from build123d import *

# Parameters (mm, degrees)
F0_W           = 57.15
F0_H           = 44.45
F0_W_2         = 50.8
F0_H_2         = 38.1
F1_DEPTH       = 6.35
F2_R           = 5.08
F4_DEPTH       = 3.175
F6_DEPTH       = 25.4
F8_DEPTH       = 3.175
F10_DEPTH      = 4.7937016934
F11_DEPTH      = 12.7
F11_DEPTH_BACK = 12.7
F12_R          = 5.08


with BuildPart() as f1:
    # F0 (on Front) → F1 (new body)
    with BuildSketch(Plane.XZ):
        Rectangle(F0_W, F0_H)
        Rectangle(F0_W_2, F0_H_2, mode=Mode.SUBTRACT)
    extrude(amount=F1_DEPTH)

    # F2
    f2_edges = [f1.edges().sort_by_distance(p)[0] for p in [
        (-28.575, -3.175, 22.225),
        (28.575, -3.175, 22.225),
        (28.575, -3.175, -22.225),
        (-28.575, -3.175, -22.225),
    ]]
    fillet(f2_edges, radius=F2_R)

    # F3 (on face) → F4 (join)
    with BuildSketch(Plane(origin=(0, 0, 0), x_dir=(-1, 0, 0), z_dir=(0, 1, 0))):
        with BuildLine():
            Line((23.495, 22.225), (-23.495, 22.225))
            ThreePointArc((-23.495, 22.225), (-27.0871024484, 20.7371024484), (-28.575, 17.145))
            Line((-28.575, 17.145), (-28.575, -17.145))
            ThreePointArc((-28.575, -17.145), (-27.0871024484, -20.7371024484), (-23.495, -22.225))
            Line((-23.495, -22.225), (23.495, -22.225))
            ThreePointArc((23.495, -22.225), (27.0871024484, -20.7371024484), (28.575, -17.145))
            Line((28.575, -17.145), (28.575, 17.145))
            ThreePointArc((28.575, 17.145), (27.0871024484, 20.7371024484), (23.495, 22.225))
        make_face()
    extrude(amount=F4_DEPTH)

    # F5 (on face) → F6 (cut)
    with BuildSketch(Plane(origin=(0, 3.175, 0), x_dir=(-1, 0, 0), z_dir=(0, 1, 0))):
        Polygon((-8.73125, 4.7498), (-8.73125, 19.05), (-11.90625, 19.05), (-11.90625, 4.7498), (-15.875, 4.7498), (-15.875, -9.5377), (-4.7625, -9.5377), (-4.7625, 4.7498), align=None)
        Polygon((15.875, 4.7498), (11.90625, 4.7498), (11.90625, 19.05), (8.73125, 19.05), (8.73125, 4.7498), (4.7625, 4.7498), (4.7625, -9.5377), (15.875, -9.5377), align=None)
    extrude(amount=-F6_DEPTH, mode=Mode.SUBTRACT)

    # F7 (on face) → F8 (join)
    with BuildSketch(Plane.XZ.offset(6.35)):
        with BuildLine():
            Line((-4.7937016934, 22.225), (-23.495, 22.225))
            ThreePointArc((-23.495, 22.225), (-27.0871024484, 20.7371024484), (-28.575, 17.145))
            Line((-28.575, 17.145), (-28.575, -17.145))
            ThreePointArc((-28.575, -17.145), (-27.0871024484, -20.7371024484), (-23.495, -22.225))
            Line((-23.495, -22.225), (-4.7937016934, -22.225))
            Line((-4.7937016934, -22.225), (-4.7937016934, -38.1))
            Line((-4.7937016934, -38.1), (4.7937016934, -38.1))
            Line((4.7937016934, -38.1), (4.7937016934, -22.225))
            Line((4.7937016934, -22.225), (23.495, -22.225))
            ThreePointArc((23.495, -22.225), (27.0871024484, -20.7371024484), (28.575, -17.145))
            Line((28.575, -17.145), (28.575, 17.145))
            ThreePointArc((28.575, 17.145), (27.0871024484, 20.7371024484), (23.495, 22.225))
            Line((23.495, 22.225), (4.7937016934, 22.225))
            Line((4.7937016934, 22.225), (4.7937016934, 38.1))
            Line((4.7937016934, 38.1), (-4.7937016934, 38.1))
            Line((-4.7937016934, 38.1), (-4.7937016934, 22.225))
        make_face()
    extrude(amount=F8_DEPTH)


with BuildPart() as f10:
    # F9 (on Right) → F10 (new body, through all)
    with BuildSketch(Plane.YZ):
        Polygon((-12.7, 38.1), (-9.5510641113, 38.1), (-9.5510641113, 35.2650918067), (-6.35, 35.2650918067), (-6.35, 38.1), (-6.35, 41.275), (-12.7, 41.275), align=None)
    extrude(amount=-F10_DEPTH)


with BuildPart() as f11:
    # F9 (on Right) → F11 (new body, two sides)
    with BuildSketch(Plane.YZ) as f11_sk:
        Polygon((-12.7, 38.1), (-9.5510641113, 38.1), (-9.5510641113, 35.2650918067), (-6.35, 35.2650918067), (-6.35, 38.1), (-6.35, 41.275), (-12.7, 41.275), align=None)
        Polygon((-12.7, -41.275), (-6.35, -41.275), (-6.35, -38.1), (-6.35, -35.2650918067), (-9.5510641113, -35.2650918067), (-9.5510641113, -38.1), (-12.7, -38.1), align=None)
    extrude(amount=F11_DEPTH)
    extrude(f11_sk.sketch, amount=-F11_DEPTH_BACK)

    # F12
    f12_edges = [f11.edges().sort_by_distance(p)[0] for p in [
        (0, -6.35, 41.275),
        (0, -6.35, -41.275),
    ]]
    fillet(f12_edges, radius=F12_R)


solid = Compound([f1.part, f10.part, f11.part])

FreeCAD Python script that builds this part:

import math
import FreeCAD as App
import Part
import Sketcher

V = App.Vector
Q = App.Units.Quantity


def edges_at(feature, points):
    """Names of the edges that pass closest to the given points."""
    edges = feature.Shape.Edges
    near = lambda p: min(range(len(edges)), key=lambda i: edges[i].distToShape(Part.Vertex(*p))[0])
    return sorted({f"Edge{near(p) + 1}" for p in points})

doc = App.newDocument("Part")
body = doc.addObject("PartDesign::Body", "Body")

# Sketch on XZ plane
sketch1 = body.newObject("Sketcher::SketchObject", "Sketch")
sketch1.AttachmentSupport = (doc.getObject("XZ_Plane"), [""])
sketch1.MapMode = "FlatFace"
sketch1.addGeometry([
    Part.LineSegment(V(-29, 22, 0), V(-29, -22, 0)),  # 0
    Part.LineSegment(V(-29, -22, 0), V(29, -22, 0)),  # 1
    Part.LineSegment(V(29, -22, 0), V(29, 22, 0)),  # 2
    Part.LineSegment(V(29, 22, 0), V(-29, 22, 0)),  # 3
    Part.LineSegment(V(25, -19, 0), V(-25, -19, 0)),  # 4
    Part.LineSegment(V(-25, -19, 0), V(-25, 19, 0)),  # 5
    Part.LineSegment(V(-25, 19, 0), V(25, 19, 0)),  # 6
    Part.LineSegment(V(25, 19, 0), V(25, -19, 0)),  # 7
], False)
sketch1.addConstraint([
    Sketcher.Constraint("Coincident", 0, 2, 1, 1),
    Sketcher.Constraint("Coincident", 1, 2, 2, 1),
    Sketcher.Constraint("Coincident", 2, 2, 3, 1),
    Sketcher.Constraint("Coincident", 3, 2, 0, 1),
    Sketcher.Constraint("Coincident", 4, 2, 5, 1),
    Sketcher.Constraint("Coincident", 5, 2, 6, 1),
    Sketcher.Constraint("Coincident", 6, 2, 7, 1),
    Sketcher.Constraint("Coincident", 7, 2, 4, 1),
    Sketcher.Constraint("Vertical", 0),
    Sketcher.Constraint("Horizontal", 1),
    Sketcher.Constraint("Vertical", 2),
    Sketcher.Constraint("Horizontal", 3),
    Sketcher.Constraint("Horizontal", 4),
    Sketcher.Constraint("Vertical", 5),
    Sketcher.Constraint("Horizontal", 6),
    Sketcher.Constraint("Vertical", 7),
    Sketcher.Constraint("Symmetric", 0, 2, 2, 2, -1, 1),
    Sketcher.Constraint("Symmetric", 4, 2, 6, 2, -1, 1),
    Sketcher.Constraint("DistanceX", 4, 2, 4, 1, Q("2 in")),
    Sketcher.Constraint("DistanceY", 5, 1, 5, 2, Q("1.5 in")),
    Sketcher.Constraint("DistanceX", 1, 1, 1, 2, Q("2.25 in")),
    Sketcher.Constraint("DistanceY", 0, 2, 0, 1, Q("1.75 in")),
])
pad1 = body.newObject("PartDesign::Pad", "Pad")
pad1.Profile = sketch1
pad1.Length = Q("0.25 in")
doc.recompute()

fillet = body.newObject("PartDesign::Fillet", "Fillet")
fillet.Base = (pad1, edges_at(pad1, [
    (-28.575, -3.175, 22.225),
    (28.575, -3.175, 22.225),
    (28.575, -3.175, -22.225),
    (-28.575, -3.175, -22.225),
]))
fillet.Radius = Q("0.2 in")

# Sketch on XZ plane
sketch2 = body.newObject("Sketcher::SketchObject", "Sketch001")
sketch2.AttachmentSupport = (doc.getObject("XZ_Plane"), [""])
sketch2.MapMode = "FlatFace"
sketch2.addGeometry([
    Part.LineSegment(V(-23, 22, 0), V(23, 22, 0)),  # 0
    Part.ArcOfCircle(Part.Circle(V(23, 17, 0), V(0, 0, 1), 5), math.radians(0), math.radians(90)),  # 1
    Part.LineSegment(V(29, 17, 0), V(29, -17, 0)),  # 2
    Part.ArcOfCircle(Part.Circle(V(23, -17, 0), V(0, 0, 1), 5), math.radians(-90), math.radians(0)),  # 3
    Part.LineSegment(V(23, -22, 0), V(-23, -22, 0)),  # 4
    Part.ArcOfCircle(Part.Circle(V(-23, -17, 0), V(0, 0, 1), 5), math.radians(180), math.radians(270)),  # 5
    Part.LineSegment(V(-29, -17, 0), V(-29, 17, 0)),  # 6
    Part.ArcOfCircle(Part.Circle(V(-23, 17, 0), V(0, 0, 1), 5), math.radians(90), math.radians(180)),  # 7
], False)
sketch2.addConstraint([
    Sketcher.Constraint("Tangent", 0, 2, 1, 2),
    Sketcher.Constraint("Tangent", 1, 1, 2, 1),
    Sketcher.Constraint("Tangent", 2, 2, 3, 2),
    Sketcher.Constraint("Tangent", 3, 1, 4, 1),
    Sketcher.Constraint("Tangent", 4, 2, 5, 2),
    Sketcher.Constraint("Tangent", 5, 1, 6, 1),
    Sketcher.Constraint("Tangent", 6, 2, 7, 2),
    Sketcher.Constraint("Tangent", 7, 1, 0, 1),
    Sketcher.Constraint("Horizontal", 0),
    Sketcher.Constraint("Vertical", 2),
    Sketcher.Constraint("Horizontal", 4),
    Sketcher.Constraint("Vertical", 6),
    Sketcher.Constraint("Equal", 1, 3),
    Sketcher.Constraint("Equal", 3, 5),
    Sketcher.Constraint("Equal", 5, 7),
    Sketcher.Constraint("Symmetric", 1, 3, 5, 3, -1, 1),
    Sketcher.Constraint("Radius", 1, Q("0.2 in")),
    Sketcher.Constraint("DistanceX", 0, 1, 0, 2, Q("1.85 in")),
    Sketcher.Constraint("DistanceY", 2, 2, 2, 1, Q("1.35 in")),
])
pad2 = body.newObject("PartDesign::Pad", "Pad001")
pad2.Profile = sketch2
pad2.Length = Q("0.125 in")
pad2.Reversed = True

# Sketch on XZ plane
sketch3 = body.newObject("Sketcher::SketchObject", "Sketch002")
sketch3.AttachmentSupport = (doc.getObject("XZ_Plane"), [""])
sketch3.MapMode = "FlatFace"
sketch3.AttachmentOffset = App.Placement(V(0, 0, -0.125 * 25.4), App.Rotation())
sketch3.addGeometry([
    Part.LineSegment(V(8.7, 4.7, 0), V(8.7, 19.1, 0)),  # 0
    Part.LineSegment(V(8.7, 19.1, 0), V(11.9, 19.1, 0)),  # 1
    Part.LineSegment(V(11.9, 19.1, 0), V(11.9, 4.7, 0)),  # 2
    Part.LineSegment(V(11.9, 4.7, 0), V(15.9, 4.7, 0)),  # 3
    Part.LineSegment(V(15.9, 4.7, 0), V(15.9, -9.5, 0)),  # 4
    Part.LineSegment(V(15.9, -9.5, 0), V(4.8, -9.5, 0)),  # 5
    Part.LineSegment(V(4.8, -9.5, 0), V(4.8, 4.7, 0)),  # 6
    Part.LineSegment(V(4.8, 4.7, 0), V(8.7, 4.7, 0)),  # 7
    Part.LineSegment(V(-15.9, 4.7, 0), V(-11.9, 4.7, 0)),  # 8
    Part.LineSegment(V(-11.9, 4.7, 0), V(-11.9, 19.1, 0)),  # 9
    Part.LineSegment(V(-11.9, 19.1, 0), V(-8.7, 19.1, 0)),  # 10
    Part.LineSegment(V(-8.7, 19.1, 0), V(-8.7, 4.7, 0)),  # 11
    Part.LineSegment(V(-8.7, 4.7, 0), V(-4.8, 4.7, 0)),  # 12
    Part.LineSegment(V(-4.8, 4.7, 0), V(-4.8, -9.5, 0)),  # 13
    Part.LineSegment(V(-4.8, -9.5, 0), V(-15.9, -9.5, 0)),  # 14
    Part.LineSegment(V(-15.9, -9.5, 0), V(-15.9, 4.7, 0)),  # 15
], False)
sketch3.addConstraint([
    Sketcher.Constraint("Coincident", 0, 2, 1, 1),
    Sketcher.Constraint("Coincident", 1, 2, 2, 1),
    Sketcher.Constraint("Coincident", 2, 2, 3, 1),
    Sketcher.Constraint("Coincident", 3, 2, 4, 1),
    Sketcher.Constraint("Coincident", 4, 2, 5, 1),
    Sketcher.Constraint("Coincident", 5, 2, 6, 1),
    Sketcher.Constraint("Coincident", 6, 2, 7, 1),
    Sketcher.Constraint("Coincident", 7, 2, 0, 1),
    Sketcher.Constraint("Coincident", 8, 2, 9, 1),
    Sketcher.Constraint("Coincident", 9, 2, 10, 1),
    Sketcher.Constraint("Coincident", 10, 2, 11, 1),
    Sketcher.Constraint("Coincident", 11, 2, 12, 1),
    Sketcher.Constraint("Coincident", 12, 2, 13, 1),
    Sketcher.Constraint("Coincident", 13, 2, 14, 1),
    Sketcher.Constraint("Coincident", 14, 2, 15, 1),
    Sketcher.Constraint("Coincident", 15, 2, 8, 1),
    Sketcher.Constraint("Vertical", 0),
    Sketcher.Constraint("Horizontal", 1),
    Sketcher.Constraint("Vertical", 2),
    Sketcher.Constraint("Horizontal", 3),
    Sketcher.Constraint("Vertical", 4),
    Sketcher.Constraint("Horizontal", 5),
    Sketcher.Constraint("Vertical", 6),
    Sketcher.Constraint("Horizontal", 7),
    Sketcher.Constraint("Horizontal", 8),
    Sketcher.Constraint("Vertical", 9),
    Sketcher.Constraint("Horizontal", 10),
    Sketcher.Constraint("Vertical", 11),
    Sketcher.Constraint("Horizontal", 12),
    Sketcher.Constraint("Vertical", 13),
    Sketcher.Constraint("Horizontal", 14),
    Sketcher.Constraint("Vertical", 15),
    Sketcher.Constraint("Symmetric", 2, 2, 8, 2, -2),
    Sketcher.Constraint("Symmetric", 0, 2, 10, 2, -2),
    Sketcher.Constraint("Symmetric", 6, 2, 12, 2, -2),
    Sketcher.Constraint("Symmetric", 4, 2, 14, 2, -2),
    Sketcher.Constraint("Horizontal", 3, 2, 6, 2),
    Sketcher.Constraint("Equal", 3, 7),
    Sketcher.Constraint("DistanceX", 1, 1, 1, 2, Q("0.125 in")),
    Sketcher.Constraint("DistanceX", 3, 1, 3, 2, Q("0.15625 in")),
    Sketcher.Constraint("DistanceY", 0, 1, 0, 2, Q("0.563 in")),
    Sketcher.Constraint("DistanceY", 4, 2, 4, 1, Q("0.5625 in")),
    Sketcher.Constraint("DistanceY", -1, 1, 0, 2, Q("0.75 in")),
    Sketcher.Constraint("DistanceX", -1, 1, 0, 2, Q("0.34375 in")),
])
pocket1 = body.newObject("PartDesign::Pocket", "Pocket")
pocket1.Profile = sketch3
pocket1.Length = Q("1 in")
pocket1.Reversed = True

# Sketch on XZ plane
sketch4 = body.newObject("Sketcher::SketchObject", "Sketch003")
sketch4.AttachmentSupport = (doc.getObject("XZ_Plane"), [""])
sketch4.MapMode = "FlatFace"
sketch4.AttachmentOffset = App.Placement(V(0, 0, 0.25 * 25.4), App.Rotation())
sketch4.addGeometry([
    Part.LineSegment(V(-5, 22, 0), V(-23, 22, 0)),  # 0
    Part.ArcOfCircle(Part.Circle(V(-23, 17, 0), V(0, 0, 1), 5), math.radians(90), math.radians(180)),  # 1
    Part.LineSegment(V(-29, 17, 0), V(-29, -17, 0)),  # 2
    Part.ArcOfCircle(Part.Circle(V(-23, -17, 0), V(0, 0, 1), 5), math.radians(180), math.radians(270)),  # 3
    Part.LineSegment(V(-23, -22, 0), V(-5, -22, 0)),  # 4
    Part.LineSegment(V(-5, -22, 0), V(-5, -38, 0)),  # 5
    Part.LineSegment(V(-5, -38, 0), V(5, -38, 0)),  # 6
    Part.LineSegment(V(5, -38, 0), V(5, -22, 0)),  # 7
    Part.LineSegment(V(5, -22, 0), V(23, -22, 0)),  # 8
    Part.ArcOfCircle(Part.Circle(V(23, -17, 0), V(0, 0, 1), 5), math.radians(-90), math.radians(0)),  # 9
    Part.LineSegment(V(29, -17, 0), V(29, 17, 0)),  # 10
    Part.ArcOfCircle(Part.Circle(V(23, 17, 0), V(0, 0, 1), 5), math.radians(0), math.radians(90)),  # 11
    Part.LineSegment(V(23, 22, 0), V(5, 22, 0)),  # 12
    Part.LineSegment(V(5, 22, 0), V(5, 38, 0)),  # 13
    Part.LineSegment(V(5, 38, 0), V(-5, 38, 0)),  # 14
    Part.LineSegment(V(-5, 38, 0), V(-5, 22, 0)),  # 15
], False)
sketch4.addConstraint([
    Sketcher.Constraint("Tangent", 0, 2, 1, 1),
    Sketcher.Constraint("Tangent", 1, 2, 2, 1),
    Sketcher.Constraint("Tangent", 2, 2, 3, 1),
    Sketcher.Constraint("Tangent", 3, 2, 4, 1),
    Sketcher.Constraint("Coincident", 4, 2, 5, 1),
    Sketcher.Constraint("Coincident", 5, 2, 6, 1),
    Sketcher.Constraint("Coincident", 6, 2, 7, 1),
    Sketcher.Constraint("Coincident", 7, 2, 8, 1),
    Sketcher.Constraint("Tangent", 8, 2, 9, 1),
    Sketcher.Constraint("Tangent", 9, 2, 10, 1),
    Sketcher.Constraint("Tangent", 10, 2, 11, 1),
    Sketcher.Constraint("Tangent", 11, 2, 12, 1),
    Sketcher.Constraint("Coincident", 12, 2, 13, 1),
    Sketcher.Constraint("Coincident", 13, 2, 14, 1),
    Sketcher.Constraint("Coincident", 14, 2, 15, 1),
    Sketcher.Constraint("Coincident", 15, 2, 0, 1),
    Sketcher.Constraint("Horizontal", 0),
    Sketcher.Constraint("Vertical", 2),
    Sketcher.Constraint("Horizontal", 4),
    Sketcher.Constraint("Vertical", 5),
    Sketcher.Constraint("Horizontal", 6),
    Sketcher.Constraint("Vertical", 7),
    Sketcher.Constraint("Horizontal", 8),
    Sketcher.Constraint("Vertical", 10),
    Sketcher.Constraint("Horizontal", 12),
    Sketcher.Constraint("Vertical", 13),
    Sketcher.Constraint("Horizontal", 14),
    Sketcher.Constraint("Vertical", 15),
    Sketcher.Constraint("Equal", 1, 3),
    Sketcher.Constraint("Equal", 3, 9),
    Sketcher.Constraint("Equal", 9, 11),
    Sketcher.Constraint("Symmetric", 1, 3, 9, 3, -1, 1),
    Sketcher.Constraint("Symmetric", 4, 2, 12, 2, -1, 1),
    Sketcher.Constraint("Symmetric", 6, 2, 14, 2, -1, 1),
    Sketcher.Constraint("Symmetric", 4, 2, 7, 2, -2),
    Sketcher.Constraint("Radius", 1, Q("0.2 in")),
    Sketcher.Constraint("DistanceY", 2, 2, 2, 1, Q("1.35 in")),
    Sketcher.Constraint("DistanceY", 5, 2, -1, 1, Q("1.5 in")),
    Sketcher.Constraint("DistanceX", 3, 3, 9, 3, Q("1.85 in")),
    Sketcher.Constraint("DistanceX", 0, 2, 0, 1, Q("18.701298 mm")),
])
pad3 = body.newObject("PartDesign::Pad", "Pad002")
pad3.Profile = sketch4
pad3.Length = Q("0.125 in")
body2 = doc.addObject("PartDesign::Body", "Body001")

# Sketch on YZ plane
sketch5 = body2.newObject("Sketcher::SketchObject", "Sketch004")
sketch5.AttachmentSupport = (doc.getObject("YZ_Plane001"), [""])
sketch5.MapMode = "FlatFace"
sketch5.addGeometry([
    Part.LineSegment(V(-12.7, 38.1, 0), V(-9.6, 38.1, 0)),  # 0
    Part.LineSegment(V(-9.6, 38.1, 0), V(-9.6, 35.3, 0)),  # 1
    Part.LineSegment(V(-9.6, 35.3, 0), V(-6.3, 35.3, 0)),  # 2
    Part.LineSegment(V(-6.3, 35.3, 0), V(-6.3, 41.3, 0)),  # 3
    Part.LineSegment(V(-6.3, 41.3, 0), V(-12.7, 41.3, 0)),  # 4
    Part.LineSegment(V(-12.7, 41.3, 0), V(-12.7, 38.1, 0)),  # 5
], False)
sketch5.addConstraint([
    Sketcher.Constraint("Coincident", 0, 2, 1, 1),
    Sketcher.Constraint("Coincident", 1, 2, 2, 1),
    Sketcher.Constraint("Coincident", 2, 2, 3, 1),
    Sketcher.Constraint("Coincident", 3, 2, 4, 1),
    Sketcher.Constraint("Coincident", 4, 2, 5, 1),
    Sketcher.Constraint("Coincident", 5, 2, 0, 1),
    Sketcher.Constraint("Horizontal", 0),
    Sketcher.Constraint("Vertical", 1),
    Sketcher.Constraint("Horizontal", 2),
    Sketcher.Constraint("Vertical", 3),
    Sketcher.Constraint("Horizontal", 4),
    Sketcher.Constraint("Vertical", 5),
    Sketcher.Constraint("DistanceX", 4, 2, 4, 1, Q("0.25 in")),
    Sketcher.Constraint("DistanceY", -1, 1, 0, 2, Q("1.5 in")),
    Sketcher.Constraint("DistanceX", 4, 2, -1, 1, Q("0.5 in")),
    Sketcher.Constraint("DistanceY", 5, 2, 5, 1, Q("0.125 in")),
    Sketcher.Constraint("DistanceY", 1, 2, 1, 1, Q("2.834908 mm")),
    Sketcher.Constraint("DistanceX", 0, 1, 0, 2, Q("3.148936 mm")),
])
pad4 = body2.newObject("PartDesign::Pad", "Pad003")
pad4.Profile = sketch5
pad4.Length = 4.793702
pad4.Reversed = True
body3 = doc.addObject("PartDesign::Body", "Body002")
body3.AllowCompound = True

# Sketch on YZ plane
sketch6 = body3.newObject("Sketcher::SketchObject", "Sketch005")
sketch6.AttachmentSupport = (doc.getObject("YZ_Plane002"), [""])
sketch6.MapMode = "FlatFace"
sketch6.addGeometry([
    Part.LineSegment(V(-12.7, 38.1, 0), V(-9.6, 38.1, 0)),  # 0
    Part.LineSegment(V(-9.6, 38.1, 0), V(-9.6, 35.3, 0)),  # 1
    Part.LineSegment(V(-9.6, 35.3, 0), V(-6.3, 35.3, 0)),  # 2
    Part.LineSegment(V(-6.3, 35.3, 0), V(-6.3, 41.3, 0)),  # 3
    Part.LineSegment(V(-6.3, 41.3, 0), V(-12.7, 41.3, 0)),  # 4
    Part.LineSegment(V(-12.7, 41.3, 0), V(-12.7, 38.1, 0)),  # 5
    Part.LineSegment(V(-12.7, -41.3, 0), V(-6.3, -41.3, 0)),  # 6
    Part.LineSegment(V(-6.3, -41.3, 0), V(-6.3, -35.3, 0)),  # 7
    Part.LineSegment(V(-6.3, -35.3, 0), V(-9.6, -35.3, 0)),  # 8
    Part.LineSegment(V(-9.6, -35.3, 0), V(-9.6, -38.1, 0)),  # 9
    Part.LineSegment(V(-9.6, -38.1, 0), V(-12.7, -38.1, 0)),  # 10
    Part.LineSegment(V(-12.7, -38.1, 0), V(-12.7, -41.3, 0)),  # 11
], False)
sketch6.addConstraint([
    Sketcher.Constraint("Coincident", 0, 2, 1, 1),
    Sketcher.Constraint("Coincident", 1, 2, 2, 1),
    Sketcher.Constraint("Coincident", 2, 2, 3, 1),
    Sketcher.Constraint("Coincident", 3, 2, 4, 1),
    Sketcher.Constraint("Coincident", 4, 2, 5, 1),
    Sketcher.Constraint("Coincident", 5, 2, 0, 1),
    Sketcher.Constraint("Coincident", 6, 2, 7, 1),
    Sketcher.Constraint("Coincident", 7, 2, 8, 1),
    Sketcher.Constraint("Coincident", 8, 2, 9, 1),
    Sketcher.Constraint("Coincident", 9, 2, 10, 1),
    Sketcher.Constraint("Coincident", 10, 2, 11, 1),
    Sketcher.Constraint("Coincident", 11, 2, 6, 1),
    Sketcher.Constraint("Horizontal", 0),
    Sketcher.Constraint("Vertical", 1),
    Sketcher.Constraint("Horizontal", 2),
    Sketcher.Constraint("Vertical", 3),
    Sketcher.Constraint("Horizontal", 4),
    Sketcher.Constraint("Vertical", 5),
    Sketcher.Constraint("Horizontal", 6),
    Sketcher.Constraint("Vertical", 7),
    Sketcher.Constraint("Horizontal", 8),
    Sketcher.Constraint("Vertical", 9),
    Sketcher.Constraint("Horizontal", 10),
    Sketcher.Constraint("Vertical", 11),
    Sketcher.Constraint("Symmetric", 3, 2, 6, 2, -1),
    Sketcher.Constraint("Symmetric", 1, 2, 8, 2, -1),
    Sketcher.Constraint("Symmetric", 5, 2, 10, 2, -1),
    Sketcher.Constraint("DistanceX", 4, 2, 4, 1, Q("0.25 in")),
    Sketcher.Constraint("DistanceY", -1, 1, 0, 2, Q("1.5 in")),
    Sketcher.Constraint("DistanceX", 4, 2, -1, 1, Q("0.5 in")),
    Sketcher.Constraint("DistanceY", 5, 2, 5, 1, Q("0.125 in")),
    Sketcher.Constraint("DistanceY", 1, 2, 1, 1, Q("2.834908 mm")),
    Sketcher.Constraint("DistanceX", 0, 1, 0, 2, Q("3.148936 mm")),
])
pad5 = body3.newObject("PartDesign::Pad", "Pad004")
pad5.Profile = sketch6
pad5.Type = "TwoLengths"
pad5.Length = Q("0.5 in")
pad5.Length2 = Q("0.5 in")
doc.recompute()

fillet2 = body3.newObject("PartDesign::Fillet", "Fillet001")
fillet2.Base = (pad5, edges_at(pad5, [(0, -6.35, 41.275), (0, -6.35, -41.275)]))
fillet2.Radius = Q("0.2 in")

doc.recompute()
